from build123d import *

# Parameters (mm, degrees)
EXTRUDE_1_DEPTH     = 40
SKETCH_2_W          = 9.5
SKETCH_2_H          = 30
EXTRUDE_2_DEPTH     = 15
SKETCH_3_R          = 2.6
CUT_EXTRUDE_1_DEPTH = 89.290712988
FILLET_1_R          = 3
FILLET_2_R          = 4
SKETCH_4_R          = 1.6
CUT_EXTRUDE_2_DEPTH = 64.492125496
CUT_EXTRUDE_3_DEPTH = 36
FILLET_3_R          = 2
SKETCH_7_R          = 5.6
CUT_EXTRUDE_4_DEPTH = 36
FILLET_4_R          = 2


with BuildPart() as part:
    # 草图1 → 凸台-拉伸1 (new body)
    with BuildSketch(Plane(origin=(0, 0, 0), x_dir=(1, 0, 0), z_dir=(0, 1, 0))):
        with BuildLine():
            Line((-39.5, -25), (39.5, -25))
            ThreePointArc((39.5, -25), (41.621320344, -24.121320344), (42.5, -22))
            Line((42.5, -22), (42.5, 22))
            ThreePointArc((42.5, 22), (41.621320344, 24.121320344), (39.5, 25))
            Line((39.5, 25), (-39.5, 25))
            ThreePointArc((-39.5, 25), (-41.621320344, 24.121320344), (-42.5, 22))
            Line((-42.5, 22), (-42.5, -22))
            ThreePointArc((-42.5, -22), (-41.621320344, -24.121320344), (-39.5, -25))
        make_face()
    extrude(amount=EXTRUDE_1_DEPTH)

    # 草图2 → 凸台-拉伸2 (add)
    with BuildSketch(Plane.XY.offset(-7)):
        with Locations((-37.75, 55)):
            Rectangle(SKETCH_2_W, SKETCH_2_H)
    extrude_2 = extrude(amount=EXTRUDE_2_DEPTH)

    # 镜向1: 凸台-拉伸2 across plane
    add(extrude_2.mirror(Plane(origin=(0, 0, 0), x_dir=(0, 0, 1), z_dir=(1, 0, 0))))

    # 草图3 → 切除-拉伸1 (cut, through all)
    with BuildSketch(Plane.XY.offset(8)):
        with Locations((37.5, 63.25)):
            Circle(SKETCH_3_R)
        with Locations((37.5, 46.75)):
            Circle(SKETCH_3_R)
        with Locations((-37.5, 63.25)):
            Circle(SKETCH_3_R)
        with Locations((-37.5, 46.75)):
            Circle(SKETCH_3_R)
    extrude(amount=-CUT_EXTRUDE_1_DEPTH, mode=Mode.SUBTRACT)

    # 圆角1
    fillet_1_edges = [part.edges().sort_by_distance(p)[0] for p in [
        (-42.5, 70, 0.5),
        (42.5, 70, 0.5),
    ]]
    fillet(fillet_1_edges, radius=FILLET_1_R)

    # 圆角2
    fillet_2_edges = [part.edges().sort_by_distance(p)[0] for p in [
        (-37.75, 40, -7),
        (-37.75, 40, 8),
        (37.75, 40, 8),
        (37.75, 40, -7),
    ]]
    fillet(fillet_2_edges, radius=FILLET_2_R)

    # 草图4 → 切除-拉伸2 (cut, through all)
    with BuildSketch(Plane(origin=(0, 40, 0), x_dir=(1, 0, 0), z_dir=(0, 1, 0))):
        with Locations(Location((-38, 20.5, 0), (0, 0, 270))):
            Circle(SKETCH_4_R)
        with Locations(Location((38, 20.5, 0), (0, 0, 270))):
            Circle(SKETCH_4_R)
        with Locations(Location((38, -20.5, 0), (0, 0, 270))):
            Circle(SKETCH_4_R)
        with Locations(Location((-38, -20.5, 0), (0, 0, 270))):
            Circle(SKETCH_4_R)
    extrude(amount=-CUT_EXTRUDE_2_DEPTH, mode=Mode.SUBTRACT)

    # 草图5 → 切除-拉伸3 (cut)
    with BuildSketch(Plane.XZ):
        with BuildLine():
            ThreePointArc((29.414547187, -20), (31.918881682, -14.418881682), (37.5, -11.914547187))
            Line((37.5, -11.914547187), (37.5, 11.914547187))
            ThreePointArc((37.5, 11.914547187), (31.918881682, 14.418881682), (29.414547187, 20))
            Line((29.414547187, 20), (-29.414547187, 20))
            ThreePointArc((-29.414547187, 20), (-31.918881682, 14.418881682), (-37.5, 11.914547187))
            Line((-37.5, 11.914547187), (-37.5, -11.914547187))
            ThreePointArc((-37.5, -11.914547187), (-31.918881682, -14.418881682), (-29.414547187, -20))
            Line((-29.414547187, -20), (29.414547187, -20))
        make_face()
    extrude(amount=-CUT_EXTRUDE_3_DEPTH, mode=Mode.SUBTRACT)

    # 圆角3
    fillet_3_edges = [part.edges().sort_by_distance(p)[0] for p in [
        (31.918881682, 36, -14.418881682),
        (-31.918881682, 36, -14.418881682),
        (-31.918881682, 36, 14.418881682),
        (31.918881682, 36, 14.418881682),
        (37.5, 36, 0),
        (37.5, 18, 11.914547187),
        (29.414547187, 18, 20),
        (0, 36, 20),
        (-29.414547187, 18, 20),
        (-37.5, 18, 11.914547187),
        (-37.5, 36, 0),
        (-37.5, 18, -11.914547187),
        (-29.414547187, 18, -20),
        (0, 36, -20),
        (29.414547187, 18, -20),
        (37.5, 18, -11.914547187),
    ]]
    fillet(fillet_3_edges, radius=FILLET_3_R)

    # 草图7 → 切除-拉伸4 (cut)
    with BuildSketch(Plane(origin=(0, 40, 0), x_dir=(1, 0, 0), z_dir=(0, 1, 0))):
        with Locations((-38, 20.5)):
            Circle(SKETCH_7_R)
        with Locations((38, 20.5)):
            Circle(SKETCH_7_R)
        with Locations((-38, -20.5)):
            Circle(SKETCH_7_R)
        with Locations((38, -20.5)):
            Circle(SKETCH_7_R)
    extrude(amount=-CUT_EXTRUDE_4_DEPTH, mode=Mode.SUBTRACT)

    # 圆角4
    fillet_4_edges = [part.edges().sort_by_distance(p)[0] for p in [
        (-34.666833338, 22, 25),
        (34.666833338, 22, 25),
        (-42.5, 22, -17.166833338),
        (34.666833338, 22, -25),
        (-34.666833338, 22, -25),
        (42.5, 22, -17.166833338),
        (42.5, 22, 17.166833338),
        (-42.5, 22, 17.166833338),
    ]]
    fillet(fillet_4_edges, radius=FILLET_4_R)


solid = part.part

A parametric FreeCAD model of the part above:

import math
import FreeCAD as App
import Part
import Sketcher

V = App.Vector
Q = App.Units.Quantity


def edges_at(feature, points):
    """Names of the edges that pass closest to the given points."""
    edges = feature.Shape.Edges
    near = lambda p: min(range(len(edges)), key=lambda i: edges[i].distToShape(Part.Vertex(*p))[0])
    return sorted({f"Edge{near(p) + 1}" for p in points})

doc = App.newDocument("Part")
params = doc.addObject("Spreadsheet::Sheet", "Params")
for row, (alias, value) in enumerate([
    ("sketch1_radius", "3 mm"),
    ("sketch1_width", "79 mm"),
    ("sketch1_height", "44 mm"),
    ("pad1_length", "40 mm"),
    ("sketch2_height", "30 mm"),
    ("sketch2_width", "9.5 mm"),
    ("pad2_length", "15 mm"),
    ("sketch3_diameter", "5.2 mm"),
    ("fillet_radius", "3 mm"),
    ("fillet2_radius", "4 mm"),
    ("sketch4_diameter", "3.2 mm"),
    ("sketch5_radius", "8.6 mm"),
    ("pocket3_length", "36 mm"),
    ("fillet3_radius", "2 mm"),
    ("sketch6_diameter", "11.2 mm"),
    ("pocket4_length", "36 mm"),
    ("fillet4_radius", "2 mm"),
], start=1):
    params.set(f"A{row}", alias)
    params.set(f"B{row}", "=" + value)
    params.setAlias(f"B{row}", alias)

body = doc.addObject("PartDesign::Body", "Body")

sketch1 = doc.addObject("Sketcher::SketchObject", "Sketch")
body.addObject(sketch1)
sketch1.AttachmentSupport = (doc.XZ_Plane, [""])
sketch1.MapMode = "FlatFace"
sketch1.addGeometry(Part.LineSegment(V(-39.5, 25, 0), V(39.5, 25, 0)), False)
sketch1.addGeometry(Part.ArcOfCircle(Part.Circle(V(39.5, 22, 0), V(0, 0, 1), 3), math.radians(0), math.radians(90)), False)
sketch1.addGeometry(Part.LineSegment(V(42.5, 22, 0), V(42.5, -22, 0)), False)
sketch1.addGeometry(Part.ArcOfCircle(Part.Circle(V(39.5, -22, 0), V(0, 0, 1), 3), math.radians(-90), math.radians(0)), False)
sketch1.addGeometry(Part.LineSegment(V(39.5, -25, 0), V(-39.5, -25, 0)), False)
sketch1.addGeometry(Part.ArcOfCircle(Part.Circle(V(-39.5, -22, 0), V(0, 0, 1), 3), math.radians(180), math.radians(270)), False)
sketch1.addGeometry(Part.LineSegment(V(-42.5, -22, 0), V(-42.5, 22, 0)), False)
sketch1.addGeometry(Part.ArcOfCircle(Part.Circle(V(-39.5, 22, 0), V(0, 0, 1), 3), math.radians(90), math.radians(180)), False)
sketch1.addConstraint(Sketcher.Constraint("Tangent", 0, 2, 1, 2))
sketch1.addConstraint(Sketcher.Constraint("Tangent", 1, 1, 2, 1))
sketch1.addConstraint(Sketcher.Constraint("Tangent", 2, 2, 3, 2))
sketch1.addConstraint(Sketcher.Constraint("Tangent", 3, 1, 4, 1))
sketch1.addConstraint(Sketcher.Constraint("Tangent", 4, 2, 5, 2))
sketch1.addConstraint(Sketcher.Constraint("Tangent", 5, 1, 6, 1))
sketch1.addConstraint(Sketcher.Constraint("Tangent", 6, 2, 7, 2))
sketch1.addConstraint(Sketcher.Constraint("Tangent", 7, 1, 0, 1))
sketch1.addConstraint(Sketcher.Constraint("Horizontal", 0))
sketch1.addConstraint(Sketcher.Constraint("Vertical", 2))
sketch1.addConstraint(Sketcher.Constraint("Horizontal", 4))
sketch1.addConstraint(Sketcher.Constraint("Vertical", 6))
sketch1.addConstraint(Sketcher.Constraint("Equal", 1, 3))
sketch1.addConstraint(Sketcher.Constraint("Equal", 3, 5))
sketch1.addConstraint(Sketcher.Constraint("Equal", 5, 7))
sketch1.addConstraint(Sketcher.Constraint("Symmetric", 1, 3, 5, 3, -1, 1))
sketch1.addConstraint(Sketcher.Constraint("Radius", 1, Q("3 mm")))
sketch1.addConstraint(Sketcher.Constraint("DistanceX", 0, 1, 0, 2, Q("79 mm")))
sketch1.addConstraint(Sketcher.Constraint("DistanceY", 2, 2, 2, 1, Q("44 mm")))
sketch1.setExpression("Constraints[16]", "Params.sketch1_radius")
sketch1.setExpression("Constraints[17]", "Params.sketch1_width")
sketch1.setExpression("Constraints[18]", "Params.sketch1_height")
pad1 = doc.addObject("PartDesign::Pad", "Pad")
body.addObject(pad1)
pad1.Profile = sketch1
pad1.setExpression("Length", "Params.pad1_length")
pad1.Reversed = True

sketch2 = doc.addObject("Sketcher::SketchObject", "Sketch001")
body.addObject(sketch2)
sketch2.AttachmentSupport = (doc.XY_Plane, [""])
sketch2.MapMode = "FlatFace"
sketch2.AttachmentOffset = App.Placement(V(0, 0, -7), App.Rotation())
sketch2.addGeometry(Part.LineSegment(V(-42, 70, 0), V(-42, 40, 0)), False)
sketch2.addGeometry(Part.LineSegment(V(-42, 40, 0), V(-33, 40, 0)), False)
sketch2.addGeometry(Part.LineSegment(V(-33, 40, 0), V(-33, 70, 0)), False)
sketch2.addGeometry(Part.LineSegment(V(-33, 70, 0), V(-42, 70, 0)), False)
sketch2.addConstraint(Sketcher.Constraint("Coincident", 0, 2, 1, 1))
sketch2.addConstraint(Sketcher.Constraint("Coincident", 1, 2, 2, 1))
sketch2.addConstraint(Sketcher.Constraint("Coincident", 2, 2, 3, 1))
sketch2.addConstraint(Sketcher.Constraint("Coincident", 3, 2, 0, 1))
sketch2.addConstraint(Sketcher.Constraint("Vertical", 0))
sketch2.addConstraint(Sketcher.Constraint("Horizontal", 1))
sketch2.addConstraint(Sketcher.Constraint("Vertical", 2))
sketch2.addConstraint(Sketcher.Constraint("Horizontal", 3))
sketch2.addConstraint(Sketcher.Constraint("DistanceY", 0, 2, 0, 1, Q("30 mm")))
sketch2.addConstraint(Sketcher.Constraint("DistanceX", 1, 1, 1, 2, Q("9.5 mm")))
sketch2.addConstraint(Sketcher.Constraint("DistanceY", -1, 1, 0, 2, Q("40 mm")))
sketch2.addConstraint(Sketcher.Constraint("DistanceX", 1, 2, -1, 1, Q("33 mm")))
sketch2.setExpression("Constraints[8]", "Params.sketch2_height")
sketch2.setExpression("Constraints[9]", "Params.sketch2_width")
pad2 = doc.addObject("PartDesign::Pad", "Pad001")
body.addObject(pad2)
pad2.Profile = sketch2
pad2.setExpression("Length", "Params.pad2_length")
doc.recompute()

mirrored = doc.addObject("PartDesign::Mirrored", "Mirrored")
body.addObject(mirrored)
mirrored.Originals = [pad2]
mirrored.MirrorPlane = (doc.YZ_Plane, [""])
body.Tip = mirrored

sketch3 = doc.addObject("Sketcher::SketchObject", "Sketch002")
body.addObject(sketch3)
sketch3.AttachmentSupport = (doc.XY_Plane, [""])
sketch3.MapMode = "FlatFace"
sketch3.AttachmentOffset = App.Placement(V(0, 0, 8), App.Rotation())
sketch3.addGeometry(Part.Circle(V(37.5, 63.2, 0), V(0, 0, 1), 2.6), False)
sketch3.addGeometry(Part.Circle(V(37.5, 46.8, 0), V(0, 0, 1), 2.6), False)
sketch3.addGeometry(Part.Circle(V(-37.5, 63.2, 0), V(0, 0, 1), 2.6), False)
sketch3.addGeometry(Part.Circle(V(-37.5, 46.8, 0), V(0, 0, 1), 2.6), False)
sketch3.addConstraint(Sketcher.Constraint("Equal", 0, 1))
sketch3.addConstraint(Sketcher.Constraint("Equal", 1, 2))
sketch3.addConstraint(Sketcher.Constraint("Equal", 2, 3))
sketch3.addConstraint(Sketcher.Constraint("Symmetric", 0, 3, 2, 3, -2))
sketch3.addConstraint(Sketcher.Constraint("Symmetric", 1, 3, 3, 3, -2))
sketch3.addConstraint(Sketcher.Constraint("Vertical", 0, 3, 1, 3))
sketch3.addConstraint(Sketcher.Constraint("Diameter", 0, Q("5.2 mm")))
sketch3.addConstraint(Sketcher.Constraint("DistanceX", 2, 3, 0, 3, Q("75 mm")))
sketch3.addConstraint(Sketcher.Constraint("DistanceY", 1, 3, 0, 3, Q("16.5 mm")))
sketch3.addConstraint(Sketcher.Constraint("DistanceY", -1, 1, 0, 3, Q("63.25 mm")))
sketch3.setExpression("Constraints[6]", "Params.sketch3_diameter")
pocket1 = doc.addObject("PartDesign::Pocket", "Pocket")
body.addObject(pocket1)
pocket1.Profile = sketch3
pocket1.Type = "ThroughAll"
doc.recompute()

fillet = doc.addObject("PartDesign::Fillet", "Fillet")
body.addObject(fillet)
fillet.Base = (pocket1, edges_at(pocket1, [(-42.5, 70, 0.5), (42.5, 70, 0.5)]))
fillet.setExpression("Radius", "Params.fillet_radius")
doc.recompute()

fillet2 = doc.addObject("PartDesign::Fillet", "Fillet001")
body.addObject(fillet2)
fillet2.Base = (fillet, edges_at(fillet, [
    (-37.75, 40, -7),
    (-37.75, 40, 8),
    (37.75, 40, 8),
    (37.75, 40, -7),
]))
fillet2.setExpression("Radius", "Params.fillet2_radius")

sketch4 = doc.addObject("Sketcher::SketchObject", "Sketch003")
body.addObject(sketch4)
sketch4.AttachmentSupport = (doc.XZ_Plane, [""])
sketch4.MapMode = "FlatFace"
sketch4.AttachmentOffset = App.Placement(V(0, 0, -40), App.Rotation())
sketch4.addGeometry(Part.Circle(V(-38, -20.5, 0), V(0, 0, 1), 1.6), False)
sketch4.addGeometry(Part.Circle(V(38, -20.5, 0), V(0, 0, 1), 1.6), False)
sketch4.addGeometry(Part.Circle(V(38, 20.5, 0), V(0, 0, 1), 1.6), False)
sketch4.addGeometry(Part.Circle(V(-38, 20.5, 0), V(0, 0, 1), 1.6), False)
sketch4.addConstraint(Sketcher.Constraint("Equal", 0, 1))
sketch4.addConstraint(Sketcher.Constraint("Equal", 1, 2))
sketch4.addConstraint(Sketcher.Constraint("Equal", 2, 3))
sketch4.addConstraint(Sketcher.Constraint("Symmetric", 0, 3, 2, 3, -1, 1))
sketch4.addConstraint(Sketcher.Constraint("Symmetric", 1, 3, 3, 3, -1, 1))
sketch4.addConstraint(Sketcher.Constraint("Symmetric", 0, 3, 1, 3, -2))
sketch4.addConstraint(Sketcher.Constraint("Diameter", 0, Q("3.2 mm")))
sketch4.addConstraint(Sketcher.Constraint("DistanceX", 0, 3, -1, 1, Q("38 mm")))
sketch4.addConstraint(Sketcher.Constraint("DistanceY", 1, 3, 2, 3, Q("41 mm")))
sketch4.setExpression("Constraints[6]", "Params.sketch4_diameter")
pocket2 = doc.addObject("PartDesign::Pocket", "Pocket001")
body.addObject(pocket2)
pocket2.Profile = sketch4
pocket2.Type = "ThroughAll"
pocket2.Reversed = True

sketch5 = doc.addObject("Sketcher::SketchObject", "Sketch004")
body.addObject(sketch5)
sketch5.AttachmentSupport = (doc.XZ_Plane, [""])
sketch5.MapMode = "FlatFace"
sketch5.addGeometry(Part.ArcOfCircle(Part.Circle(V(38, -21, 0), V(0, 0, 1), 9), math.radians(93), math.radians(177)), False)
sketch5.addGeometry(Part.LineSegment(V(38, -12, 0), V(38, 12, 0)), False)
sketch5.addGeometry(Part.ArcOfCircle(Part.Circle(V(38, 21, 0), V(0, 0, 1), 9), math.radians(-177), math.radians(-93)), False)
sketch5.addGeometry(Part.LineSegment(V(29, 20, 0), V(-29, 20, 0)), False)
sketch5.addGeometry(Part.ArcOfCircle(Part.Circle(V(-38, 21, 0), V(0, 0, 1), 9), math.radians(-87), math.radians(-3)), False)
sketch5.addGeometry(Part.LineSegment(V(-38, 12, 0), V(-38, -12, 0)), False)
sketch5.addGeometry(Part.ArcOfCircle(Part.Circle(V(-38, -21, 0), V(0, 0, 1), 9), math.radians(3), math.radians(87)), False)
sketch5.addGeometry(Part.LineSegment(V(-29, -20, 0), V(29, -20, 0)), False)
sketch5.addConstraint(Sketcher.Constraint("Coincident", 0, 1, 1, 1))
sketch5.addConstraint(Sketcher.Constraint("Coincident", 1, 2, 2, 2))
sketch5.addConstraint(Sketcher.Constraint("Coincident", 2, 1, 3, 1))
sketch5.addConstraint(Sketcher.Constraint("Coincident", 3, 2, 4, 2))
sketch5.addConstraint(Sketcher.Constraint("Coincident", 4, 1, 5, 1))
sketch5.addConstraint(Sketcher.Constraint("Coincident", 5, 2, 6, 2))
sketch5.addConstraint(Sketcher.Constraint("Coincident", 6, 1, 7, 1))
sketch5.addConstraint(Sketcher.Constraint("Coincident", 7, 2, 0, 2))
sketch5.addConstraint(Sketcher.Constraint("Vertical", 1))
sketch5.addConstraint(Sketcher.Constraint("Horizontal", 3))
sketch5.addConstraint(Sketcher.Constraint("Vertical", 5))
sketch5.addConstraint(Sketcher.Constraint("Horizontal", 7))
sketch5.addConstraint(Sketcher.Constraint("Equal", 0, 2))
sketch5.addConstraint(Sketcher.Constraint("Equal", 2, 4))
sketch5.addConstraint(Sketcher.Constraint("Equal", 4, 6))
sketch5.addConstraint(Sketcher.Constraint("Symmetric", 0, 3, 4, 3, -1, 1))
sketch5.addConstraint(Sketcher.Constraint("Symmetric", 2, 3, 6, 3, -1, 1))
sketch5.addConstraint(Sketcher.Constraint("Symmetric", 2, 3, 4, 3, -2))
sketch5.addConstraint(Sketcher.Constraint("Horizontal", 1, 2, 4, 1))
sketch5.addConstraint(Sketcher.Constraint("Vertical", 3, 2, 6, 1))
sketch5.addConstraint(Sketcher.Constraint("Radius", 0, Q("8.6 mm")))
sketch5.addConstraint(Sketcher.Constraint("DistanceX", -1, 1, 0, 3, Q("38 mm")))
sketch5.addConstraint(Sketcher.Constraint("DistanceY", -1, 1, 2, 1, Q("20 mm")))
sketch5.addConstraint(Sketcher.Constraint("DistanceY", 0, 3, 2, 3, Q("41 mm")))
sketch5.addConstraint(Sketcher.Constraint("DistanceX", 4, 1, 1, 2, Q("75 mm")))
sketch5.setExpression("Constraints[20]", "Params.sketch5_radius")
pocket3 = doc.addObject("PartDesign::Pocket", "Pocket002")
body.addObject(pocket3)
pocket3.Profile = sketch5
pocket3.setExpression("Length", "Params.pocket3_length")
doc.recompute()

fillet3 = doc.addObject("PartDesign::Fillet", "Fillet002")
body.addObject(fillet3)
fillet3.Base = (pocket3, edges_at(pocket3, [
    (31.919, 36, -14.419),
    (-31.919, 36, -14.419),
    (-31.919, 36, 14.419),
    (31.919, 36, 14.419),
    (37.5, 36, 0),
    (37.5, 18, 11.915),
    (29.415, 18, 20),
    (0, 36, 20),
    (-29.415, 18, 20),
    (-37.5, 18, 11.915),
    (-37.5, 36, 0),
    (-37.5, 18, -11.915),
    (-29.415, 18, -20),
    (0, 36, -20),
    (29.415, 18, -20),
    (37.5, 18, -11.915),
]))
fillet3.setExpression("Radius", "Params.fillet3_radius")

sketch6 = doc.addObject("Sketcher::SketchObject", "Sketch005")
body.addObject(sketch6)
sketch6.AttachmentSupport = (doc.XZ_Plane, [""])
sketch6.MapMode = "FlatFace"
sketch6.AttachmentOffset = App.Placement(V(0, 0, -40), App.Rotation())
sketch6.addGeometry(Part.Circle(V(-38, -20, 0), V(0, 0, 1), 6), False)
sketch6.addGeometry(Part.Circle(V(38, -20, 0), V(0, 0, 1), 6), False)
sketch6.addGeometry(Part.Circle(V(-38, 20, 0), V(0, 0, 1), 6), False)
sketch6.addGeometry(Part.Circle(V(38, 20, 0), V(0, 0, 1), 6), False)
sketch6.addConstraint(Sketcher.Constraint("Equal", 0, 1))
sketch6.addConstraint(Sketcher.Constraint("Equal", 1, 2))
sketch6.addConstraint(Sketcher.Constraint("Equal", 2, 3))
sketch6.addConstraint(Sketcher.Constraint("Symmetric", 1, 3, 2, 3, -1, 1))
sketch6.addConstraint(Sketcher.Constraint("Symmetric", 0, 3, 3, 3, -1, 1))
sketch6.addConstraint(Sketcher.Constraint("Symmetric", 0, 3, 1, 3, -2))
sketch6.addConstraint(Sketcher.Constraint("Diameter", 0, Q("11.2 mm")))
sketch6.addConstraint(Sketcher.Constraint("DistanceX", 0, 3, -1, 1, Q("38 mm")))
sketch6.addConstraint(Sketcher.Constraint("DistanceY", 0, 3, 2, 3, Q("41 mm")))
sketch6.setExpression("Constraints[6]", "Params.sketch6_diameter")
pocket4 = doc.addObject("PartDesign::Pocket", "Pocket003")
body.addObject(pocket4)
pocket4.Profile = sketch6
pocket4.setExpression("Length", "Params.pocket4_length")
pocket4.Reversed = True
doc.recompute()

fillet4 = doc.addObject("PartDesign::Fillet", "Fillet003")
body.addObject(fillet4)
fillet4.Base = (pocket4, edges_at(pocket4, [
    (-34.667, 22, 25),
    (34.667, 22, 25),
    (-42.5, 22, -17.167),
    (34.667, 22, -25),
    (-34.667, 22, -25),
    (42.5, 22, -17.167),
    (42.5, 22, 17.167),
    (-42.5, 22, 17.167),
]))
fillet4.setExpression("Radius", "Params.fillet4_radius")

doc.recompute()
